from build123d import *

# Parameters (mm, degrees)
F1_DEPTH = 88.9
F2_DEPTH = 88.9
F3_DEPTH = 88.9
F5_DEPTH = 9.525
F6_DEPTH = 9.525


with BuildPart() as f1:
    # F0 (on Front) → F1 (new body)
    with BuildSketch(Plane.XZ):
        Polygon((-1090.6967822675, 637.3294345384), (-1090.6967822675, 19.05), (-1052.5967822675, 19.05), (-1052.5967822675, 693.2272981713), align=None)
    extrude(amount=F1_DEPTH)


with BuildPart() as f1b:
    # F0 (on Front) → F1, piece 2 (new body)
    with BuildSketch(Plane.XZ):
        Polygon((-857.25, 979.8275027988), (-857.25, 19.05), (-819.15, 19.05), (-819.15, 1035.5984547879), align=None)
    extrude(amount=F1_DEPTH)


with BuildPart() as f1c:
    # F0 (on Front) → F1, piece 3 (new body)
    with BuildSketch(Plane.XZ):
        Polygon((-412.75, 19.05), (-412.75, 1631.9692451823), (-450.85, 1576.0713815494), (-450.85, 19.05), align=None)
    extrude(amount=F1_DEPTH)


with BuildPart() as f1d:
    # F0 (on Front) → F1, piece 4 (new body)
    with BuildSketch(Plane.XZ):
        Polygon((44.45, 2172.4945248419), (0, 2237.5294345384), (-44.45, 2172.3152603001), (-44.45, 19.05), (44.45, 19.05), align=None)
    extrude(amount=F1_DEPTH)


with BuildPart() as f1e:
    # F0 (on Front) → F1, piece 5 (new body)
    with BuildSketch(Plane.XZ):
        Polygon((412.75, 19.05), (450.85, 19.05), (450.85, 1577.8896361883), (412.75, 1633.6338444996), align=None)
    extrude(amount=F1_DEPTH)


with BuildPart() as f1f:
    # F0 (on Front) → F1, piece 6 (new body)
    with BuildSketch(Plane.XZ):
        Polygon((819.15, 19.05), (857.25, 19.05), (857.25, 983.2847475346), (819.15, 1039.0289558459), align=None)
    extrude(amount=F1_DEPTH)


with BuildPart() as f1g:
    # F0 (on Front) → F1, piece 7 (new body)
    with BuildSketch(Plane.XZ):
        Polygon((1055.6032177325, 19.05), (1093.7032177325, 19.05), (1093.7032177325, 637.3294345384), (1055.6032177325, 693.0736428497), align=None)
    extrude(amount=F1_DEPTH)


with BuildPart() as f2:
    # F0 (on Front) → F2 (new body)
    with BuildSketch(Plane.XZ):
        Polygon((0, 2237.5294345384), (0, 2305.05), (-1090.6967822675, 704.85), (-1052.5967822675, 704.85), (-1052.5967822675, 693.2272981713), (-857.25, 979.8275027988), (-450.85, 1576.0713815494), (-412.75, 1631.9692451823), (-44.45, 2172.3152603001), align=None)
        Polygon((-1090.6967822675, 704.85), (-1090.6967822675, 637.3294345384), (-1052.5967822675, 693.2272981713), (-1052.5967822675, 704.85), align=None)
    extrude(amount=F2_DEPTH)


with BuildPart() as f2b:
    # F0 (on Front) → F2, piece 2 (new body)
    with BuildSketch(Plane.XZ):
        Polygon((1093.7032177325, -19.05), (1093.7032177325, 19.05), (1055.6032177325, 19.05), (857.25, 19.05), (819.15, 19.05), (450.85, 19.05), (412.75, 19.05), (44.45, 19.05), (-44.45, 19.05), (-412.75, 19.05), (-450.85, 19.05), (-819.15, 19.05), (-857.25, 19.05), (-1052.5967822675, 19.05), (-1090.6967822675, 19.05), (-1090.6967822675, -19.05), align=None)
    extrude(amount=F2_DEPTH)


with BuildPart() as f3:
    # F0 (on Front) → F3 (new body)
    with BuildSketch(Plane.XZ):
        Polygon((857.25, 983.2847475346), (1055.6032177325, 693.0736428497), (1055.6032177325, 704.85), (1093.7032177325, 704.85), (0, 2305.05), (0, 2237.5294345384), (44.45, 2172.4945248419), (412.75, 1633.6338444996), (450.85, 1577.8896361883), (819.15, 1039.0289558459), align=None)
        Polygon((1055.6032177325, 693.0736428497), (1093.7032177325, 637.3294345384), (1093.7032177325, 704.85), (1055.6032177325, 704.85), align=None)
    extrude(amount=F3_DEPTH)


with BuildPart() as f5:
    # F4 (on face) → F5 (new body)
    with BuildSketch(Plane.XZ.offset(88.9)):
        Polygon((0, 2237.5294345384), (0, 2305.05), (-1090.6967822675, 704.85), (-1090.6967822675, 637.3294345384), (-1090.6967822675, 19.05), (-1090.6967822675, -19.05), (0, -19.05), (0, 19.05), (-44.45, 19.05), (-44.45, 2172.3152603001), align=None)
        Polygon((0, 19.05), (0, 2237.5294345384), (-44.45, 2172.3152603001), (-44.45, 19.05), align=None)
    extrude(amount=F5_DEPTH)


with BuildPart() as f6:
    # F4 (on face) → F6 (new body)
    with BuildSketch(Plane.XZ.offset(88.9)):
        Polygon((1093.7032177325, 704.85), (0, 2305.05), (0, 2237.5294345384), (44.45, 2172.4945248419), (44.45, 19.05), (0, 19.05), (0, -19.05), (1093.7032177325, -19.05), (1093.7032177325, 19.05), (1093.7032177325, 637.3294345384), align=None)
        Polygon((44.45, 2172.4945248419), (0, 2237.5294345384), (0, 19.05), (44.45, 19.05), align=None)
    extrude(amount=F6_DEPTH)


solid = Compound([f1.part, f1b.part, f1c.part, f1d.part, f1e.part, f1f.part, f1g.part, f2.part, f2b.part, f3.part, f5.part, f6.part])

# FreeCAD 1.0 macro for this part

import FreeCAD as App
import Part
import Sketcher

V = App.Vector
Q = App.Units.Quantity


def add_polygon(sketch, points):
    """Adds a closed chain of lines whose ends are joined by coincident constraints."""
    first, n = sketch.GeometryCount, len(points)
    for a, b in zip(points, points[1:] + points[:1]):
        sketch.addGeometry(Part.LineSegment(App.Vector(*a, 0), App.Vector(*b, 0)), False)
    for i in range(n):
        sketch.addConstraint(Sketcher.Constraint("Coincident", first + i, 2, first + (i + 1) % n, 1))

doc = App.newDocument("Part")
params = doc.addObject("Spreadsheet::Sheet", "Params")
for row, (alias, value) in enumerate([
    ("sketch1_width", "1.5 in"),
    ("pad1_length", "3.5 in"),
    ("sketch2_width", "1.5 in"),
    ("pad2_length", "3.5 in"),
    ("sketch3_width", "1.5 in"),
    ("pad3_length", "3.5 in"),
    ("sketch4_width", "3.5 in"),
    ("pad4_length", "3.5 in"),
    ("sketch5_width", "1.5 in"),
    ("pad5_length", "3.5 in"),
    ("sketch6_width", "1.5 in"),
    ("pad6_length", "3.5 in"),
    ("sketch7_width", "1.5 in"),
    ("pad7_length", "3.5 in"),
    ("pad8_length", "3.5 in"),
    ("sketch9_width", "86 in"),
    ("sketch9_height", "1.5 in"),
    ("pad9_length", "3.5 in"),
    ("pad10_length", "3.5 in"),
    ("sketch11_height", "28.5 in"),
    ("sketch11_height2", "91.5 in"),
    ("pad11_length", "0.375 in"),
    ("sketch12_height", "91.5 in"),
    ("sketch12_height2", "28.5 in"),
    ("pad12_length", "0.375 in"),
], start=1):
    params.set(f"A{row}", alias)
    params.set(f"B{row}", "=" + value)
    params.setAlias(f"B{row}", alias)

body = doc.addObject("PartDesign::Body", "Body")

# Sketch on XZ plane
sketch1 = body.newObject("Sketcher::SketchObject", "Sketch")
sketch1.AttachmentSupport = (doc.getObject("XZ_Plane"), [""])
sketch1.MapMode = "FlatFace"
add_polygon(sketch1, [(-1090.696782, 637.329435), (-1090.696782, 19.05), (-1052.596782, 19.05), (-1052.596782, 693.227298)])  # lines 0-3
sketch1.addConstraint(Sketcher.Constraint("Vertical", 0))
sketch1.addConstraint(Sketcher.Constraint("Horizontal", 1))
sketch1.addConstraint(Sketcher.Constraint("Vertical", 2))
sketch1.addConstraint(Sketcher.Constraint("DistanceX", 1, 1, 1, 2, Q("1.5 in")))
sketch1.addConstraint(Sketcher.Constraint("DistanceY", -1, 1, 0, 2, Q("0.75 in")))
sketch1.addConstraint(Sketcher.Constraint("DistanceY", 2, 1, 2, 2, Q("674.177298 mm")))
sketch1.addConstraint(Sketcher.Constraint("DistanceY", 0, 2, 0, 1, Q("618.279435 mm")))
sketch1.addConstraint(Sketcher.Constraint("DistanceX", 0, 2, -1, 1, Q("1090.696782 mm")))
sketch1.setExpression("Constraints[7]", "Params.sketch1_width")
pad1 = body.newObject("PartDesign::Pad", "Pad")
pad1.Profile = sketch1
pad1.setExpression("Length", "Params.pad1_length")
body2 = doc.addObject("PartDesign::Body", "Body001")

# Sketch on XZ plane
sketch2 = body2.newObject("Sketcher::SketchObject", "Sketch001")
sketch2.AttachmentSupport = (doc.getObject("XZ_Plane001"), [""])
sketch2.MapMode = "FlatFace"
add_polygon(sketch2, [(-857.25, 979.827503), (-857.25, 19.05), (-819.15, 19.05), (-819.15, 1035.598455)])  # lines 0-3
sketch2.addConstraint(Sketcher.Constraint("Vertical", 0))
sketch2.addConstraint(Sketcher.Constraint("Horizontal", 1))
sketch2.addConstraint(Sketcher.Constraint("Vertical", 2))
sketch2.addConstraint(Sketcher.Constraint("DistanceX", 1, 1, 1, 2, Q("1.5 in")))
sketch2.addConstraint(Sketcher.Constraint("DistanceX", 0, 2, -1, 1, Q("33.75 in")))
sketch2.addConstraint(Sketcher.Constraint("DistanceY", -1, 1, 0, 2, Q("0.75 in")))
sketch2.addConstraint(Sketcher.Constraint("DistanceY", 0, 2, 0, 1, Q("960.777503 mm")))
sketch2.addConstraint(Sketcher.Constraint("DistanceY", 2, 1, 2, 2, Q("1016.548455 mm")))
sketch2.setExpression("Constraints[7]", "Params.sketch2_width")
pad2 = body2.newObject("PartDesign::Pad", "Pad001")
pad2.Profile = sketch2
pad2.setExpression("Length", "Params.pad2_length")
body3 = doc.addObject("PartDesign::Body", "Body002")

# Sketch on XZ plane
sketch3 = body3.newObject("Sketcher::SketchObject", "Sketch002")
sketch3.AttachmentSupport = (doc.getObject("XZ_Plane002"), [""])
sketch3.MapMode = "FlatFace"
add_polygon(sketch3, [(-412.75, 19.05), (-412.75, 1631.969245), (-450.85, 1576.071382), (-450.85, 19.05)])  # lines 0-3
sketch3.addConstraint(Sketcher.Constraint("Vertical", 0))
sketch3.addConstraint(Sketcher.Constraint("Vertical", 2))
sketch3.addConstraint(Sketcher.Constraint("Horizontal", 3))
sketch3.addConstraint(Sketcher.Constraint("DistanceX", 3, 1, 3, 2, Q("1.5 in")))
sketch3.addConstraint(Sketcher.Constraint("DistanceX", 0, 2, -1, 1, Q("16.25 in")))
sketch3.addConstraint(Sketcher.Constraint("DistanceY", -1, 1, 2, 2, Q("0.75 in")))
sketch3.addConstraint(Sketcher.Constraint("DistanceY", 2, 2, 2, 1, Q("1557.021382 mm")))
sketch3.addConstraint(Sketcher.Constraint("DistanceY", 0, 1, 0, 2, Q("1612.919245 mm")))
sketch3.setExpression("Constraints[7]", "Params.sketch3_width")
pad3 = body3.newObject("PartDesign::Pad", "Pad002")
pad3.Profile = sketch3
pad3.setExpression("Length", "Params.pad3_length")
body4 = doc.addObject("PartDesign::Body", "Body003")

# Sketch on XZ plane
sketch4 = body4.newObject("Sketcher::SketchObject", "Sketch003")
sketch4.AttachmentSupport = (doc.getObject("XZ_Plane003"), [""])
sketch4.MapMode = "FlatFace"
add_polygon(sketch4, [(44.45, 2172.494525), (0, 2237.529435), (-44.45, 2172.31526), (-44.45, 19.05), (44.45, 19.05)])  # lines 0-4
sketch4.addConstraint(Sketcher.Constraint("Vertical", 2))
sketch4.addConstraint(Sketcher.Constraint("Horizontal", 3))
sketch4.addConstraint(Sketcher.Constraint("Vertical", 4))
sketch4.addConstraint(Sketcher.Constraint("PointOnObject", 0, 2, -2))
sketch4.addConstraint(Sketcher.Constraint("DistanceX", 3, 1, 3, 2, Q("3.5 in")))
sketch4.addConstraint(Sketcher.Constraint("DistanceX", 1, 2, -1, 1, Q("1.75 in")))
sketch4.addConstraint(Sketcher.Constraint("DistanceY", -1, 1, 2, 2, Q("0.75 in")))
sketch4.addConstraint(Sketcher.Constraint("DistanceY", 2, 2, 2, 1, Q("2153.26526 mm")))
sketch4.addConstraint(Sketcher.Constraint("DistanceY", 4, 1, 4, 2, Q("2153.444525 mm")))
sketch4.addConstraint(Sketcher.Constraint("DistanceY", 4, 2, 0, 2, Q("65.03491 mm")))
sketch4.setExpression("Constraints[9]", "Params.sketch4_width")
pad4 = body4.newObject("PartDesign::Pad", "Pad003")
pad4.Profile = sketch4
pad4.setExpression("Length", "Params.pad4_length")
body5 = doc.addObject("PartDesign::Body", "Body004")

# Sketch on XZ plane
sketch5 = body5.newObject("Sketcher::SketchObject", "Sketch004")
sketch5.AttachmentSupport = (doc.getObject("XZ_Plane004"), [""])
sketch5.MapMode = "FlatFace"
add_polygon(sketch5, [(412.75, 19.05), (450.85, 19.05), (450.85, 1577.889636), (412.75, 1633.633844)])  # lines 0-3
sketch5.addConstraint(Sketcher.Constraint("Horizontal", 0))
sketch5.addConstraint(Sketcher.Constraint("Vertical", 1))
sketch5.addConstraint(Sketcher.Constraint("Vertical", 3))
sketch5.addConstraint(Sketcher.Constraint("DistanceX", 0, 1, 0, 2, Q("1.5 in")))
sketch5.addConstraint(Sketcher.Constraint("DistanceX", -1, 1, 0, 2, Q("17.75 in")))
sketch5.addConstraint(Sketcher.Constraint("DistanceY", -1, 1, 0, 2, Q("0.75 in")))
sketch5.addConstraint(Sketcher.Constraint("DistanceY", 1, 1, 1, 2, Q("1558.839636 mm")))
sketch5.addConstraint(Sketcher.Constraint("DistanceY", 3, 2, 3, 1, Q("1614.583844 mm")))
sketch5.setExpression("Constraints[7]", "Params.sketch5_width")
pad5 = body5.newObject("PartDesign::Pad", "Pad004")
pad5.Profile = sketch5
pad5.setExpression("Length", "Params.pad5_length")
body6 = doc.addObject("PartDesign::Body", "Body005")

# Sketch on XZ plane
sketch6 = body6.newObject("Sketcher::SketchObject", "Sketch005")
sketch6.AttachmentSupport = (doc.getObject("XZ_Plane005"), [""])
sketch6.MapMode = "FlatFace"
add_polygon(sketch6, [(819.15, 19.05), (857.25, 19.05), (857.25, 983.284748), (819.15, 1039.028956)])  # lines 0-3
sketch6.addConstraint(Sketcher.Constraint("Horizontal", 0))
sketch6.addConstraint(Sketcher.Constraint("Vertical", 1))
sketch6.addConstraint(Sketcher.Constraint("Vertical", 3))
sketch6.addConstraint(Sketcher.Constraint("DistanceX", 0, 1, 0, 2, Q("1.5 in")))
sketch6.addConstraint(Sketcher.Constraint("DistanceX", -1, 1, 0, 2, Q("33.75 in")))
sketch6.addConstraint(Sketcher.Constraint("DistanceY", -1, 1, 0, 2, Q("0.75 in")))
sketch6.addConstraint(Sketcher.Constraint("DistanceY", 1, 1, 1, 2, Q("964.234748 mm")))
sketch6.addConstraint(Sketcher.Constraint("DistanceY", 3, 2, 3, 1, Q("1019.978956 mm")))
sketch6.setExpression("Constraints[7]", "Params.sketch6_width")
pad6 = body6.newObject("PartDesign::Pad", "Pad005")
pad6.Profile = sketch6
pad6.setExpression("Length", "Params.pad6_length")
body7 = doc.addObject("PartDesign::Body", "Body006")

# Sketch on XZ plane
sketch7 = body7.newObject("Sketcher::SketchObject", "Sketch006")
sketch7.AttachmentSupport = (doc.getObject("XZ_Plane006"), [""])
sketch7.MapMode = "FlatFace"
add_polygon(sketch7, [(1055.603218, 19.05), (1093.703218, 19.05), (1093.703218, 637.329435), (1055.603218, 693.073643)])  # lines 0-3
sketch7.addConstraint(Sketcher.Constraint("Horizontal", 0))
sketch7.addConstraint(Sketcher.Constraint("Vertical", 1))
sketch7.addConstraint(Sketcher.Constraint("Vertical", 3))
sketch7.addConstraint(Sketcher.Constraint("DistanceX", 0, 1, 0, 2, Q("1.5 in")))
sketch7.addConstraint(Sketcher.Constraint("DistanceY", -1, 1, 0, 2, Q("0.75 in")))
sketch7.addConstraint(Sketcher.Constraint("DistanceY", 1, 1, 1, 2, Q("618.279435 mm")))
sketch7.addConstraint(Sketcher.Constraint("DistanceY", 3, 2, 3, 1, Q("674.023643 mm")))
sketch7.addConstraint(Sketcher.Constraint("DistanceX", -1, 1, 0, 2, Q("1093.703218 mm")))
sketch7.setExpression("Constraints[7]", "Params.sketch7_width")
pad7 = body7.newObject("PartDesign::Pad", "Pad006")
pad7.Profile = sketch7
pad7.setExpression("Length", "Params.pad7_length")
body8 = doc.addObject("PartDesign::Body", "Body007")

# Sketch on XZ plane
sketch8 = body8.newObject("Sketcher::SketchObject", "Sketch007")
sketch8.AttachmentSupport = (doc.getObject("XZ_Plane007"), [""])
sketch8.MapMode = "FlatFace"
add_polygon(sketch8, [(0, 2237.529435), (0, 2305.05), (-1090.696782, 704.85), (-1090.696782, 637.329435)])  # lines 0-3
sketch8.addConstraint(Sketcher.Constraint("Vertical", 0))
sketch8.addConstraint(Sketcher.Constraint("Vertical", 2))
sketch8.addConstraint(Sketcher.Constraint("PointOnObject", 0, 2, -2))
sketch8.addConstraint(Sketcher.Constraint("Parallel", 1, 3))
sketch8.addConstraint(Sketcher.Constraint("DistanceY", 1, 2, 0, 2, Q("63 in")))
sketch8.addConstraint(Sketcher.Constraint("DistanceY", -1, 1, 0, 2, Q("90.75 in")))
sketch8.addConstraint(Sketcher.Constraint("DistanceY", 0, 1, 0, 2, Q("67.520565 mm")))
sketch8.addConstraint(Sketcher.Constraint("Distance", 1, Q("1936.558677 mm")))
pad8 = body8.newObject("PartDesign::Pad", "Pad007")
pad8.Profile = sketch8
pad8.setExpression("Length", "Params.pad8_length")
body9 = doc.addObject("PartDesign::Body", "Body008")

# Sketch on XZ plane
sketch9 = body9.newObject("Sketcher::SketchObject", "Sketch008")
sketch9.AttachmentSupport = (doc.getObject("XZ_Plane008"), [""])
sketch9.MapMode = "FlatFace"
add_polygon(sketch9, [(1093.703218, -19.05), (1093.703218, 19.05), (-1090.696782, 19.05), (-1090.696782, -19.05)])  # lines 0-3
sketch9.addConstraint(Sketcher.Constraint("Vertical", 0))
sketch9.addConstraint(Sketcher.Constraint("Horizontal", 1))
sketch9.addConstraint(Sketcher.Constraint("Vertical", 2))
sketch9.addConstraint(Sketcher.Constraint("Horizontal", 3))
sketch9.addConstraint(Sketcher.Constraint("DistanceX", 1, 2, 1, 1, Q("86 in")))
sketch9.addConstraint(Sketcher.Constraint("DistanceY", 0, 1, 0, 2, Q("1.5 in")))
sketch9.addConstraint(Sketcher.Constraint("DistanceY", -1, 1, 0, 2, Q("0.75 in")))
sketch9.addConstraint(Sketcher.Constraint("DistanceX", -1, 1, 0, 2, Q("1093.703218 mm")))
sketch9.setExpression("Constraints[8]", "Params.sketch9_width")
sketch9.setExpression("Constraints[9]", "Params.sketch9_height")
pad9 = body9.newObject("PartDesign::Pad", "Pad008")
pad9.Profile = sketch9
pad9.setExpression("Length", "Params.pad9_length")
body10 = doc.addObject("PartDesign::Body", "Body009")

# Sketch on XZ plane
sketch10 = body10.newObject("Sketcher::SketchObject", "Sketch009")
sketch10.AttachmentSupport = (doc.getObject("XZ_Plane009"), [""])
sketch10.MapMode = "FlatFace"
add_polygon(sketch10, [(1093.703218, 704.85), (0, 2305.05), (0, 2237.529435), (1093.703218, 637.329435)])  # lines 0-3
sketch10.addConstraint(Sketcher.Constraint("Vertical", 1))
sketch10.addConstraint(Sketcher.Constraint("Vertical", 3))
sketch10.addConstraint(Sketcher.Constraint("PointOnObject", 0, 2, -2))
sketch10.addConstraint(Sketcher.Constraint("Parallel", 0, 2))
sketch10.addConstraint(Sketcher.Constraint("DistanceY", 2, 2, 1, 2, Q("63 in")))
sketch10.addConstraint(Sketcher.Constraint("DistanceY", -1, 1, 0, 2, Q("90.75 in")))
sketch10.addConstraint(Sketcher.Constraint("DistanceY", 1, 2, 1, 1, Q("67.520565 mm")))
sketch10.addConstraint(Sketcher.Constraint("Distance", 0, Q("1938.253536 mm")))
pad10 = body10.newObject("PartDesign::Pad", "Pad009")
pad10.Profile = sketch10
pad10.setExpression("Length", "Params.pad10_length")
body11 = doc.addObject("PartDesign::Body", "Body010")

# Sketch on XZ plane
sketch11 = body11.newObject("Sketcher::SketchObject", "Sketch010")
sketch11.AttachmentSupport = (doc.getObject("XZ_Plane010"), [""])
sketch11.MapMode = "FlatFace"
sketch11.AttachmentOffset = App.Placement(V(0, 0, 3.5 * 25.4), App.Rotation())
add_polygon(sketch11, [(0, 2305.05), (-1090.696782, 704.85), (-1090.696782, -19.05), (0, -19.05)])  # lines 0-3
sketch11.addConstraint(Sketcher.Constraint("Vertical", 1))
sketch11.addConstraint(Sketcher.Constraint("Horizontal", 2))
sketch11.addConstraint(Sketcher.Constraint("Vertical", 3))
sketch11.addConstraint(Sketcher.Constraint("PointOnObject", 2, 2, -2))
sketch11.addConstraint(Sketcher.Constraint("DistanceY", 1, 2, 1, 1, Q("28.5 in")))
sketch11.addConstraint(Sketcher.Constraint("DistanceY", 3, 1, 3, 2, Q("91.5 in")))
sketch11.addConstraint(Sketcher.Constraint("DistanceY", -1, 1, 0, 2, Q("27.75 in")))
sketch11.addConstraint(Sketcher.Constraint("DistanceX", 2, 1, 2, 2, Q("1090.696782 mm")))
sketch11.setExpression("Constraints[8]", "Params.sketch11_height")
sketch11.setExpression("Constraints[9]", "Params.sketch11_height2")
pad11 = body11.newObject("PartDesign::Pad", "Pad010")
pad11.Profile = sketch11
pad11.setExpression("Length", "Params.pad11_length")
body12 = doc.addObject("PartDesign::Body", "Body011")

# Sketch on XZ plane
sketch12 = body12.newObject("Sketcher::SketchObject", "Sketch011")
sketch12.AttachmentSupport = (doc.getObject("XZ_Plane011"), [""])
sketch12.MapMode = "FlatFace"
sketch12.AttachmentOffset = App.Placement(V(0, 0, 3.5 * 25.4), App.Rotation())
add_polygon(sketch12, [(1093.703218, 704.85), (0, 2305.05), (0, -19.05), (1093.703218, -19.05)])  # lines 0-3
sketch12.addConstraint(Sketcher.Constraint("Vertical", 1))
sketch12.addConstraint(Sketcher.Constraint("Horizontal", 2))
sketch12.addConstraint(Sketcher.Constraint("Vertical", 3))
sketch12.addConstraint(Sketcher.Constraint("PointOnObject", 0, 2, -2))
sketch12.addConstraint(Sketcher.Constraint("DistanceY", 1, 2, 1, 1, Q("91.5 in")))
sketch12.addConstraint(Sketcher.Constraint("DistanceY", 3, 1, 3, 2, Q("28.5 in")))
sketch12.addConstraint(Sketcher.Constraint("DistanceY", -1, 1, 0, 2, Q("90.75 in")))
sketch12.addConstraint(Sketcher.Constraint("DistanceX", 2, 1, 2, 2, Q("1093.703218 mm")))
sketch12.setExpression("Constraints[8]", "Params.sketch12_height")
sketch12.setExpression("Constraints[9]", "Params.sketch12_height2")
pad12 = body12.newObject("PartDesign::Pad", "Pad011")
pad12.Profile = sketch12
pad12.setExpression("Length", "Params.pad12_length")

doc.recompute()
